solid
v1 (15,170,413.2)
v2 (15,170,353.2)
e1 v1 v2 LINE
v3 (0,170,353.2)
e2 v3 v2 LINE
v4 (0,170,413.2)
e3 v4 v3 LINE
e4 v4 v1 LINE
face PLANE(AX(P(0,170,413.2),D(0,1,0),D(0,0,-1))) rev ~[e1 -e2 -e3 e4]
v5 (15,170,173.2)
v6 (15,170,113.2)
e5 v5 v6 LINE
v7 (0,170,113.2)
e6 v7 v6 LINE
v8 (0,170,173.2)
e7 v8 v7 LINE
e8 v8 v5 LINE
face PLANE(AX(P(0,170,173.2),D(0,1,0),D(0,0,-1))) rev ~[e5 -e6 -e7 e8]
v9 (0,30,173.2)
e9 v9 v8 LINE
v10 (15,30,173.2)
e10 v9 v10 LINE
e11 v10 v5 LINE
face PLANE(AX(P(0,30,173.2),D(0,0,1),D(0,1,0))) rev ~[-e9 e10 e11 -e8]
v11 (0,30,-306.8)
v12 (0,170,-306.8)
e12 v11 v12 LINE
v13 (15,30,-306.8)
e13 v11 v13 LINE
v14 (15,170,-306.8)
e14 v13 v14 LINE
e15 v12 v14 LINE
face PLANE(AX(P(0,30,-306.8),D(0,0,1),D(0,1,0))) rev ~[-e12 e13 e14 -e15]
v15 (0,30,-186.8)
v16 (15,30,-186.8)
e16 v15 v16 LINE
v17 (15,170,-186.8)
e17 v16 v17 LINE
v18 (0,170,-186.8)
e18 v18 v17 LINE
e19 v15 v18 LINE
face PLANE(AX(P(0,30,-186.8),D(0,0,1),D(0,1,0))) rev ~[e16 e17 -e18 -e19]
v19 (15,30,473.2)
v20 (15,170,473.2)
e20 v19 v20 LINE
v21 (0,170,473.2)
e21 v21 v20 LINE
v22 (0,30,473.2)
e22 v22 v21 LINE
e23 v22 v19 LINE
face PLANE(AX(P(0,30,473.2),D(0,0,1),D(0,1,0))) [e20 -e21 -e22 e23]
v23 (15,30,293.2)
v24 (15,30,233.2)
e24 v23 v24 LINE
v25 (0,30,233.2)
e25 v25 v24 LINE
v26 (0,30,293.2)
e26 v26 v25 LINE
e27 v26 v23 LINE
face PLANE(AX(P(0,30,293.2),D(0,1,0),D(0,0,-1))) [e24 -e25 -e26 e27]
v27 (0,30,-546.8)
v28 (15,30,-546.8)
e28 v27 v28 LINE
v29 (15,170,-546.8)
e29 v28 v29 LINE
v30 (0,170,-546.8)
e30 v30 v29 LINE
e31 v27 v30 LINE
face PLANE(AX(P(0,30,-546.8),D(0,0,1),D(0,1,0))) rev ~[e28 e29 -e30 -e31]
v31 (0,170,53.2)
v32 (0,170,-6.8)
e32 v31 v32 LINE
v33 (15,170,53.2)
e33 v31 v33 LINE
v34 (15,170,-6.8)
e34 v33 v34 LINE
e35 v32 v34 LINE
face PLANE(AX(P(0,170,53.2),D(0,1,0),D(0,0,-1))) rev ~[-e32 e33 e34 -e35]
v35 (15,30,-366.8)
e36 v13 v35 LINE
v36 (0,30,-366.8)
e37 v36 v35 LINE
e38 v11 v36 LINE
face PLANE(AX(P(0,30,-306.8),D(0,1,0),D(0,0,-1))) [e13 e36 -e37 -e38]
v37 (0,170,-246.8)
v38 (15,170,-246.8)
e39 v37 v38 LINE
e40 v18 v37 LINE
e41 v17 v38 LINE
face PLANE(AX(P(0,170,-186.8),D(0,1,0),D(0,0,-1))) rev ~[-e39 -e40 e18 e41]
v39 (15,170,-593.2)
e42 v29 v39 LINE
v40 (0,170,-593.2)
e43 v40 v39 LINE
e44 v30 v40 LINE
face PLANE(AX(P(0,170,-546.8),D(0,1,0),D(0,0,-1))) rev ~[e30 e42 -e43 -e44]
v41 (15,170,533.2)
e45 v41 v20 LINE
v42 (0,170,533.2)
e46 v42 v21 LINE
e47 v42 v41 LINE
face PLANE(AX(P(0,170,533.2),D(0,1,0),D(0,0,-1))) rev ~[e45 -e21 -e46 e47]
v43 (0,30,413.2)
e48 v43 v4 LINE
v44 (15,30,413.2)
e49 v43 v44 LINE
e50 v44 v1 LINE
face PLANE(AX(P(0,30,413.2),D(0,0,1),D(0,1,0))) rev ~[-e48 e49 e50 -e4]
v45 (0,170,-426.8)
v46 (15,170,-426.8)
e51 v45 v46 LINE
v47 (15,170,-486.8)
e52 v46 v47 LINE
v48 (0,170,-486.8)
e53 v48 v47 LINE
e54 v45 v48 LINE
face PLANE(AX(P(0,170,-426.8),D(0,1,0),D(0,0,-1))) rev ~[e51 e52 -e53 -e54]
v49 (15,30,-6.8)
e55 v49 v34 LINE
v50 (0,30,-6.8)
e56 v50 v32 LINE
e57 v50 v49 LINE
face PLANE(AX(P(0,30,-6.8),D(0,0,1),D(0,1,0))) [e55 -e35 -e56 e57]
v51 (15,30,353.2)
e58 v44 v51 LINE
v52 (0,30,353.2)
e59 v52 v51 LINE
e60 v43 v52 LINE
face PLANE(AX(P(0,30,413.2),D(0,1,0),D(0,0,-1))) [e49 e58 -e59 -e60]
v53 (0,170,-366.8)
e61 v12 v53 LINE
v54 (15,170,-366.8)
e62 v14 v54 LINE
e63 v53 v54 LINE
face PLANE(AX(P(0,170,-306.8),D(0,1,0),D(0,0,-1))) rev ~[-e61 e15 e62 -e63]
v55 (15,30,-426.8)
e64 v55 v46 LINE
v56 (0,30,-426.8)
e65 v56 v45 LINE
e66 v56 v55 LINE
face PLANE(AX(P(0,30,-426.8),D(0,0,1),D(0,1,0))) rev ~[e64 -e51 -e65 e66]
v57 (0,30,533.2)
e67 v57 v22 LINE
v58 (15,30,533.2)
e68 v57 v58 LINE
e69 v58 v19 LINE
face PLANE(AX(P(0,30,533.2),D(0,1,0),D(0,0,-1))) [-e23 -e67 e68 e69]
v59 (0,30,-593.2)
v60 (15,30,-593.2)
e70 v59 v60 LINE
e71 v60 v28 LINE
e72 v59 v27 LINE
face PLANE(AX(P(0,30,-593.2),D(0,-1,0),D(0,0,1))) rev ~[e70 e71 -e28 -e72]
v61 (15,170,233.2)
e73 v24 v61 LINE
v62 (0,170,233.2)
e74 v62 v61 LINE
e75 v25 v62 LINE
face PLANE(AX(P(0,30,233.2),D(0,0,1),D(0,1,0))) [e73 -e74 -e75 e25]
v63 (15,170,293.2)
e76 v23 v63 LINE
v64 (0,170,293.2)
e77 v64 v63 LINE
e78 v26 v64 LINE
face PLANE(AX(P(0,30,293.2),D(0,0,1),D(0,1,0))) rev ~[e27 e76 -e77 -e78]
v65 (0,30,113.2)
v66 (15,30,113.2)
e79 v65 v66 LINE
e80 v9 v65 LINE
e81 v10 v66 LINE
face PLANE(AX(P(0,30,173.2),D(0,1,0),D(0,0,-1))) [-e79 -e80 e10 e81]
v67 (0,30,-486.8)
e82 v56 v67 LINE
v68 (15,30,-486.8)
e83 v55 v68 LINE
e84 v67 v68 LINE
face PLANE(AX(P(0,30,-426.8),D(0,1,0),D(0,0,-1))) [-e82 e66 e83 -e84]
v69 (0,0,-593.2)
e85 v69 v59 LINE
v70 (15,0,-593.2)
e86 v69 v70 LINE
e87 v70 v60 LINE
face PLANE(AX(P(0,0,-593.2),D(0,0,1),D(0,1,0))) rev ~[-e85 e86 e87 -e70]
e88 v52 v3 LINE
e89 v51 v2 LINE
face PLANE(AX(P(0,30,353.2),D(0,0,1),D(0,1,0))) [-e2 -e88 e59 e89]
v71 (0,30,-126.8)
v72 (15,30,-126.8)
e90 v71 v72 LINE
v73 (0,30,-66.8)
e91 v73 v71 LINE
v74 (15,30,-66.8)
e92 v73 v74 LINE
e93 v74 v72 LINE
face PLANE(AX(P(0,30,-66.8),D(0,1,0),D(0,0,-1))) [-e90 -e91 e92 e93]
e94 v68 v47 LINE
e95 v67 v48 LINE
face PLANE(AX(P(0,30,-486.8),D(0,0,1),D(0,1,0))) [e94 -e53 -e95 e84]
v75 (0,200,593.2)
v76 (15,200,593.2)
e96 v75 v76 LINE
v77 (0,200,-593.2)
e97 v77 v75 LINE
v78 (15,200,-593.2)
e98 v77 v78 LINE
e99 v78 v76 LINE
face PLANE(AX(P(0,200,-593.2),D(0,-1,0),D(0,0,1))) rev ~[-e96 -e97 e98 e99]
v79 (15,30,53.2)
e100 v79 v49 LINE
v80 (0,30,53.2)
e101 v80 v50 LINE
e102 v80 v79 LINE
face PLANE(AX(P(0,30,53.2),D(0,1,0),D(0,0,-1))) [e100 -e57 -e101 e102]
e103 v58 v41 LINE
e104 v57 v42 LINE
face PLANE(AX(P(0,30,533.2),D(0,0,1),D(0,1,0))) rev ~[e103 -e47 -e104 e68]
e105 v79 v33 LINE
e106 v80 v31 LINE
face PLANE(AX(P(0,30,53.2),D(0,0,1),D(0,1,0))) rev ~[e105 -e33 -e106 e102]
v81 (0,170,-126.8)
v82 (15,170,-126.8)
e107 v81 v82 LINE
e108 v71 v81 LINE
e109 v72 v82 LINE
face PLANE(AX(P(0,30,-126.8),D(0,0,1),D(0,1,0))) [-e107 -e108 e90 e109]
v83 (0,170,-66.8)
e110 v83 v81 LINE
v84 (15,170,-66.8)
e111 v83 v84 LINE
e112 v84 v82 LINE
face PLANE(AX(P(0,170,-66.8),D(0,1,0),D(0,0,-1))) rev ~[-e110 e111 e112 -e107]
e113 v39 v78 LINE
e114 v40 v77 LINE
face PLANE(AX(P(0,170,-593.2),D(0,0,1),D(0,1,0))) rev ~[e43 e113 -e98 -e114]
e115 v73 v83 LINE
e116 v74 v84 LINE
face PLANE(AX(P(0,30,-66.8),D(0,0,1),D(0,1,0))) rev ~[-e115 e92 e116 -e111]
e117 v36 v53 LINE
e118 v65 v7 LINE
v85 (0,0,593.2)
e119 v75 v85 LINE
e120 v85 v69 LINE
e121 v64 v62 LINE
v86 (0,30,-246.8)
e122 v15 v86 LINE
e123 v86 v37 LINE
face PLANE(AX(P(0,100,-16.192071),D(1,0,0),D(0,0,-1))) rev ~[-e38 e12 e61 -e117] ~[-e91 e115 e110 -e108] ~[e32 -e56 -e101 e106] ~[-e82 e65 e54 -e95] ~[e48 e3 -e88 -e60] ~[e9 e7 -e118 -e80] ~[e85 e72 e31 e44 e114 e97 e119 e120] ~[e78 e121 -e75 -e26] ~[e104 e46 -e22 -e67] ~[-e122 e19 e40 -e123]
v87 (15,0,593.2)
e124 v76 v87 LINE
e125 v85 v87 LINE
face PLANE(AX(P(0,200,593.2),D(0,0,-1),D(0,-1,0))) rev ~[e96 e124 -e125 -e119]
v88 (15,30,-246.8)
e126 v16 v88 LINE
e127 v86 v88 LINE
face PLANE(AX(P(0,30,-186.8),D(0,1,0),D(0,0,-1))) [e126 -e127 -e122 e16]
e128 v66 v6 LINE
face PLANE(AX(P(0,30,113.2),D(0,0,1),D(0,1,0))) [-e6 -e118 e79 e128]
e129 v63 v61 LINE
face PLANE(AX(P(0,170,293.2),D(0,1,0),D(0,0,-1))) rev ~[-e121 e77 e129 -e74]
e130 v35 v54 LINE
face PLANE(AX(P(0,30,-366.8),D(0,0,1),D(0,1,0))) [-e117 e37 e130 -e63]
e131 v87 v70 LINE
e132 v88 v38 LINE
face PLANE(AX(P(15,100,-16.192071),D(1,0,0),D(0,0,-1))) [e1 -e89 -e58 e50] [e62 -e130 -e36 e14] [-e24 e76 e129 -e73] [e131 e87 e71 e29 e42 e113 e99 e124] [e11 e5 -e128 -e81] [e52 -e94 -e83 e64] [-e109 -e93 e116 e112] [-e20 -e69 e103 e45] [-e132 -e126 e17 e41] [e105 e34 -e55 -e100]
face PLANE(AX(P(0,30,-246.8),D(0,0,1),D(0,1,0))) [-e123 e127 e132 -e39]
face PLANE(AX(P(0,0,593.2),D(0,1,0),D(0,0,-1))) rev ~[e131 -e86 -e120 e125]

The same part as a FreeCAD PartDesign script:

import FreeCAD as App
import Part
import Sketcher

doc = App.newDocument("Part")
body = doc.addObject("PartDesign::Body", "Body")

sketch1 = body.newObject("Sketcher::SketchObject", "Sketch")
sketch1.AttachmentSupport = (doc.getObject("YZ_Plane"), [""])
sketch1.MapMode = "FlatFace"
sketch1.addGeometry([
    Part.LineSegment(App.Vector(0, 593, 0), App.Vector(0, -593, 0)),
    Part.LineSegment(App.Vector(0, -593, 0), App.Vector(30, -593, 0)),
    Part.LineSegment(App.Vector(30, -593, 0), App.Vector(30, -547, 0)),
    Part.LineSegment(App.Vector(30, -547, 0), App.Vector(170, -547, 0)),
    Part.LineSegment(App.Vector(170, -547, 0), App.Vector(170, -593, 0)),
    Part.LineSegment(App.Vector(170, -593, 0), App.Vector(200, -593, 0)),
    Part.LineSegment(App.Vector(200, -593, 0), App.Vector(200, 593, 0)),
    Part.LineSegment(App.Vector(200, 593, 0), App.Vector(0, 593, 0)),
    Part.LineSegment(App.Vector(30, 473, 0), App.Vector(30, 533, 0)),
    Part.LineSegment(App.Vector(30, 533, 0), App.Vector(170, 533, 0)),
    Part.LineSegment(App.Vector(170, 533, 0), App.Vector(170, 473, 0)),
    Part.LineSegment(App.Vector(170, 473, 0), App.Vector(30, 473, 0)),
    Part.LineSegment(App.Vector(30, 353, 0), App.Vector(30, 413, 0)),
    Part.LineSegment(App.Vector(30, 413, 0), App.Vector(170, 413, 0)),
    Part.LineSegment(App.Vector(170, 413, 0), App.Vector(170, 353, 0)),
    Part.LineSegment(App.Vector(170, 353, 0), App.Vector(30, 353, 0)),
    Part.LineSegment(App.Vector(30, 233, 0), App.Vector(30, 293, 0)),
    Part.LineSegment(App.Vector(30, 293, 0), App.Vector(170, 293, 0)),
    Part.LineSegment(App.Vector(170, 293, 0), App.Vector(170, 233, 0)),
    Part.LineSegment(App.Vector(170, 233, 0), App.Vector(30, 233, 0)),
    Part.LineSegment(App.Vector(30, 113, 0), App.Vector(30, 173, 0)),
    Part.LineSegment(App.Vector(30, 173, 0), App.Vector(170, 173, 0)),
    Part.LineSegment(App.Vector(170, 173, 0), App.Vector(170, 113, 0)),
    Part.LineSegment(App.Vector(170, 113, 0), App.Vector(30, 113, 0)),
    Part.LineSegment(App.Vector(30, -7, 0), App.Vector(30, 53, 0)),
    Part.LineSegment(App.Vector(30, 53, 0), App.Vector(170, 53, 0)),
    Part.LineSegment(App.Vector(170, 53, 0), App.Vector(170, -7, 0)),
    Part.LineSegment(App.Vector(170, -7, 0), App.Vector(30, -7, 0)),
    Part.LineSegment(App.Vector(30, -127, 0), App.Vector(30, -67, 0)),
    Part.LineSegment(App.Vector(30, -67, 0), App.Vector(170, -67, 0)),
    Part.LineSegment(App.Vector(170, -67, 0), App.Vector(170, -127, 0)),
    Part.LineSegment(App.Vector(170, -127, 0), App.Vector(30, -127, 0)),
    Part.LineSegment(App.Vector(30, -247, 0), App.Vector(30, -187, 0)),
    Part.LineSegment(App.Vector(30, -187, 0), App.Vector(170, -187, 0)),
    Part.LineSegment(App.Vector(170, -187, 0), App.Vector(170, -247, 0)),
    Part.LineSegment(App.Vector(170, -247, 0), App.Vector(30, -247, 0)),
    Part.LineSegment(App.Vector(30, -367, 0), App.Vector(30, -307, 0)),
    Part.LineSegment(App.Vector(30, -307, 0), App.Vector(170, -307, 0)),
    Part.LineSegment(App.Vector(170, -307, 0), App.Vector(170, -367, 0)),
    Part.LineSegment(App.Vector(170, -367, 0), App.Vector(30, -367, 0)),
    Part.LineSegment(App.Vector(30, -487, 0), App.Vector(30, -427, 0)),
    Part.LineSegment(App.Vector(30, -427, 0), App.Vector(170, -427, 0)),
    Part.LineSegment(App.Vector(170, -427, 0), App.Vector(170, -487, 0)),
    Part.LineSegment(App.Vector(170, -487, 0), App.Vector(30, -487, 0)),
], False)
sketch1.addConstraint([
    Sketcher.Constraint("Coincident", 0, 2, 1, 1),
    Sketcher.Constraint("Coincident", 1, 2, 2, 1),
    Sketcher.Constraint("Coincident", 2, 2, 3, 1),
    Sketcher.Constraint("Coincident", 3, 2, 4, 1),
    Sketcher.Constraint("Coincident", 4, 2, 5, 1),
    Sketcher.Constraint("Coincident", 5, 2, 6, 1),
    Sketcher.Constraint("Coincident", 6, 2, 7, 1),
    Sketcher.Constraint("Coincident", 7, 2, 0, 1),
    Sketcher.Constraint("Coincident", 8, 2, 9, 1),
    Sketcher.Constraint("Coincident", 9, 2, 10, 1),
    Sketcher.Constraint("Coincident", 10, 2, 11, 1),
    Sketcher.Constraint("Coincident", 11, 2, 8, 1),
    Sketcher.Constraint("Coincident", 12, 2, 13, 1),
    Sketcher.Constraint("Coincident", 13, 2, 14, 1),
    Sketcher.Constraint("Coincident", 14, 2, 15, 1),
    Sketcher.Constraint("Coincident", 15, 2, 12, 1),
    Sketcher.Constraint("Coincident", 16, 2, 17, 1),
    Sketcher.Constraint("Coincident", 17, 2, 18, 1),
    Sketcher.Constraint("Coincident", 18, 2, 19, 1),
    Sketcher.Constraint("Coincident", 19, 2, 16, 1),
    Sketcher.Constraint("Coincident", 20, 2, 21, 1),
    Sketcher.Constraint("Coincident", 21, 2, 22, 1),
    Sketcher.Constraint("Coincident", 22, 2, 23, 1),
    Sketcher.Constraint("Coincident", 23, 2, 20, 1),
    Sketcher.Constraint("Coincident", 24, 2, 25, 1),
    Sketcher.Constraint("Coincident", 25, 2, 26, 1),
    Sketcher.Constraint("Coincident", 26, 2, 27, 1),
    Sketcher.Constraint("Coincident", 27, 2, 24, 1),
    Sketcher.Constraint("Coincident", 28, 2, 29, 1),
    Sketcher.Constraint("Coincident", 29, 2, 30, 1),
    Sketcher.Constraint("Coincident", 30, 2, 31, 1),
    Sketcher.Constraint("Coincident", 31, 2, 28, 1),
    Sketcher.Constraint("Coincident", 32, 2, 33, 1),
    Sketcher.Constraint("Coincident", 33, 2, 34, 1),
    Sketcher.Constraint("Coincident", 34, 2, 35, 1),
    Sketcher.Constraint("Coincident", 35, 2, 32, 1),
    Sketcher.Constraint("Coincident", 36, 2, 37, 1),
    Sketcher.Constraint("Coincident", 37, 2, 38, 1),
    Sketcher.Constraint("Coincident", 38, 2, 39, 1),
    Sketcher.Constraint("Coincident", 39, 2, 36, 1),
    Sketcher.Constraint("Coincident", 40, 2, 41, 1),
    Sketcher.Constraint("Coincident", 41, 2, 42, 1),
    Sketcher.Constraint("Coincident", 42, 2, 43, 1),
    Sketcher.Constraint("Coincident", 43, 2, 40, 1),
    Sketcher.Constraint("Vertical", 0),
    Sketcher.Constraint("Horizontal", 1),
    Sketcher.Constraint("Vertical", 2),
    Sketcher.Constraint("Horizontal", 3),
    Sketcher.Constraint("Vertical", 4),
    Sketcher.Constraint("Horizontal", 5),
    Sketcher.Constraint("Vertical", 6),
    Sketcher.Constraint("Horizontal", 7),
    Sketcher.Constraint("Vertical", 8),
    Sketcher.Constraint("Horizontal", 9),
    Sketcher.Constraint("Vertical", 10),
    Sketcher.Constraint("Horizontal", 11),
    Sketcher.Constraint("Vertical", 12),
    Sketcher.Constraint("Horizontal", 13),
    Sketcher.Constraint("Vertical", 14),
    Sketcher.Constraint("Horizontal", 15),
    Sketcher.Constraint("Vertical", 16),
    Sketcher.Constraint("Horizontal", 17),
    Sketcher.Constraint("Vertical", 18),
    Sketcher.Constraint("Horizontal", 19),
    Sketcher.Constraint("Vertical", 20),
    Sketcher.Constraint("Horizontal", 21),
    Sketcher.Constraint("Vertical", 22),
    Sketcher.Constraint("Horizontal", 23),
    Sketcher.Constraint("Vertical", 24),
    Sketcher.Constraint("Horizontal", 25),
    Sketcher.Constraint("Vertical", 26),
    Sketcher.Constraint("Horizontal", 27),
    Sketcher.Constraint("Vertical", 28),
    Sketcher.Constraint("Horizontal", 29),
    Sketcher.Constraint("Vertical", 30),
    Sketcher.Constraint("Horizontal", 31),
    Sketcher.Constraint("Vertical", 32),
    Sketcher.Constraint("Horizontal", 33),
    Sketcher.Constraint("Vertical", 34),
    Sketcher.Constraint("Horizontal", 35),
    Sketcher.Constraint("Vertical", 36),
    Sketcher.Constraint("Horizontal", 37),
    Sketcher.Constraint("Vertical", 38),
    Sketcher.Constraint("Horizontal", 39),
    Sketcher.Constraint("Vertical", 40),
    Sketcher.Constraint("Horizontal", 41),
    Sketcher.Constraint("Vertical", 42),
    Sketcher.Constraint("Horizontal", 43),
    Sketcher.Constraint("Symmetric", 0, 2, 7, 2, -1, 1),
    Sketcher.Constraint("Horizontal", 1, 2, 4, 2),
    Sketcher.Constraint("Vertical", 2, 2, 8, 2),
    Sketcher.Constraint("Vertical", 4, 2, 9, 2),
    Sketcher.Constraint("Vertical", 11, 2, 12, 2),
    Sketcher.Constraint("Vertical", 10, 2, 13, 2),
    Sketcher.Constraint("Vertical", 15, 2, 16, 2),
    Sketcher.Constraint("Vertical", 14, 2, 17, 2),
    Sketcher.Constraint("Vertical", 19, 2, 20, 2),
    Sketcher.Constraint("Vertical", 18, 2, 21, 2),
    Sketcher.Constraint("Vertical", 23, 2, 24, 2),
    Sketcher.Constraint("Vertical", 22, 2, 25, 2),
    Sketcher.Constraint("Vertical", 27, 2, 28, 2),
    Sketcher.Constraint("Vertical", 26, 2, 29, 2),
    Sketcher.Constraint("Vertical", 31, 2, 32, 2),
    Sketcher.Constraint("Vertical", 30, 2, 33, 2),
    Sketcher.Constraint("Vertical", 35, 2, 36, 2),
    Sketcher.Constraint("Vertical", 34, 2, 37, 2),
    Sketcher.Constraint("Vertical", 39, 2, 40, 2),
    Sketcher.Constraint("Vertical", 38, 2, 41, 2),
    Sketcher.Constraint("Equal", 1, 5),
    Sketcher.Constraint("Equal", 10, 12),
    Sketcher.Constraint("Equal", 14, 16),
    Sketcher.Constraint("Equal", 18, 20),
    Sketcher.Constraint("Equal", 22, 24),
    Sketcher.Constraint("Equal", 26, 28),
    Sketcher.Constraint("Equal", 30, 32),
    Sketcher.Constraint("Equal", 34, 36),
    Sketcher.Constraint("Equal", 38, 40),
    Sketcher.Constraint("DistanceX", 1, 1, 1, 2, 30.0),
    Sketcher.Constraint("DistanceX", 3, 1, 3, 2, 140.0),
    Sketcher.Constraint("DistanceY", 8, 1, 8, 2, 60.0),
    Sketcher.Constraint("DistanceY", 0, 2, 0, 1, 1186.4),
    Sketcher.Constraint("DistanceY", 2, 1, 2, 2, 46.4),
    Sketcher.Constraint("DistanceY", 8, 2, 7, 2, 60.0),
    Sketcher.Constraint("DistanceY", 12, 2, 11, 2, 60.0),
    Sketcher.Constraint("DistanceY", 16, 2, 15, 2, 60.0),
    Sketcher.Constraint("DistanceY", 20, 2, 19, 2, 60.0),
    Sketcher.Constraint("DistanceY", 24, 2, 23, 2, 60.0),
    Sketcher.Constraint("DistanceY", 28, 2, 27, 2, 60.0),
    Sketcher.Constraint("DistanceY", 32, 2, 31, 2, 60.0),
    Sketcher.Constraint("DistanceY", 36, 2, 35, 2, 60.0),
    Sketcher.Constraint("DistanceY", 40, 2, 39, 2, 60.0),
])
pad1 = body.newObject("PartDesign::Pad", "Pad")
pad1.Profile = sketch1
pad1.Length = 15

doc.recompute()
